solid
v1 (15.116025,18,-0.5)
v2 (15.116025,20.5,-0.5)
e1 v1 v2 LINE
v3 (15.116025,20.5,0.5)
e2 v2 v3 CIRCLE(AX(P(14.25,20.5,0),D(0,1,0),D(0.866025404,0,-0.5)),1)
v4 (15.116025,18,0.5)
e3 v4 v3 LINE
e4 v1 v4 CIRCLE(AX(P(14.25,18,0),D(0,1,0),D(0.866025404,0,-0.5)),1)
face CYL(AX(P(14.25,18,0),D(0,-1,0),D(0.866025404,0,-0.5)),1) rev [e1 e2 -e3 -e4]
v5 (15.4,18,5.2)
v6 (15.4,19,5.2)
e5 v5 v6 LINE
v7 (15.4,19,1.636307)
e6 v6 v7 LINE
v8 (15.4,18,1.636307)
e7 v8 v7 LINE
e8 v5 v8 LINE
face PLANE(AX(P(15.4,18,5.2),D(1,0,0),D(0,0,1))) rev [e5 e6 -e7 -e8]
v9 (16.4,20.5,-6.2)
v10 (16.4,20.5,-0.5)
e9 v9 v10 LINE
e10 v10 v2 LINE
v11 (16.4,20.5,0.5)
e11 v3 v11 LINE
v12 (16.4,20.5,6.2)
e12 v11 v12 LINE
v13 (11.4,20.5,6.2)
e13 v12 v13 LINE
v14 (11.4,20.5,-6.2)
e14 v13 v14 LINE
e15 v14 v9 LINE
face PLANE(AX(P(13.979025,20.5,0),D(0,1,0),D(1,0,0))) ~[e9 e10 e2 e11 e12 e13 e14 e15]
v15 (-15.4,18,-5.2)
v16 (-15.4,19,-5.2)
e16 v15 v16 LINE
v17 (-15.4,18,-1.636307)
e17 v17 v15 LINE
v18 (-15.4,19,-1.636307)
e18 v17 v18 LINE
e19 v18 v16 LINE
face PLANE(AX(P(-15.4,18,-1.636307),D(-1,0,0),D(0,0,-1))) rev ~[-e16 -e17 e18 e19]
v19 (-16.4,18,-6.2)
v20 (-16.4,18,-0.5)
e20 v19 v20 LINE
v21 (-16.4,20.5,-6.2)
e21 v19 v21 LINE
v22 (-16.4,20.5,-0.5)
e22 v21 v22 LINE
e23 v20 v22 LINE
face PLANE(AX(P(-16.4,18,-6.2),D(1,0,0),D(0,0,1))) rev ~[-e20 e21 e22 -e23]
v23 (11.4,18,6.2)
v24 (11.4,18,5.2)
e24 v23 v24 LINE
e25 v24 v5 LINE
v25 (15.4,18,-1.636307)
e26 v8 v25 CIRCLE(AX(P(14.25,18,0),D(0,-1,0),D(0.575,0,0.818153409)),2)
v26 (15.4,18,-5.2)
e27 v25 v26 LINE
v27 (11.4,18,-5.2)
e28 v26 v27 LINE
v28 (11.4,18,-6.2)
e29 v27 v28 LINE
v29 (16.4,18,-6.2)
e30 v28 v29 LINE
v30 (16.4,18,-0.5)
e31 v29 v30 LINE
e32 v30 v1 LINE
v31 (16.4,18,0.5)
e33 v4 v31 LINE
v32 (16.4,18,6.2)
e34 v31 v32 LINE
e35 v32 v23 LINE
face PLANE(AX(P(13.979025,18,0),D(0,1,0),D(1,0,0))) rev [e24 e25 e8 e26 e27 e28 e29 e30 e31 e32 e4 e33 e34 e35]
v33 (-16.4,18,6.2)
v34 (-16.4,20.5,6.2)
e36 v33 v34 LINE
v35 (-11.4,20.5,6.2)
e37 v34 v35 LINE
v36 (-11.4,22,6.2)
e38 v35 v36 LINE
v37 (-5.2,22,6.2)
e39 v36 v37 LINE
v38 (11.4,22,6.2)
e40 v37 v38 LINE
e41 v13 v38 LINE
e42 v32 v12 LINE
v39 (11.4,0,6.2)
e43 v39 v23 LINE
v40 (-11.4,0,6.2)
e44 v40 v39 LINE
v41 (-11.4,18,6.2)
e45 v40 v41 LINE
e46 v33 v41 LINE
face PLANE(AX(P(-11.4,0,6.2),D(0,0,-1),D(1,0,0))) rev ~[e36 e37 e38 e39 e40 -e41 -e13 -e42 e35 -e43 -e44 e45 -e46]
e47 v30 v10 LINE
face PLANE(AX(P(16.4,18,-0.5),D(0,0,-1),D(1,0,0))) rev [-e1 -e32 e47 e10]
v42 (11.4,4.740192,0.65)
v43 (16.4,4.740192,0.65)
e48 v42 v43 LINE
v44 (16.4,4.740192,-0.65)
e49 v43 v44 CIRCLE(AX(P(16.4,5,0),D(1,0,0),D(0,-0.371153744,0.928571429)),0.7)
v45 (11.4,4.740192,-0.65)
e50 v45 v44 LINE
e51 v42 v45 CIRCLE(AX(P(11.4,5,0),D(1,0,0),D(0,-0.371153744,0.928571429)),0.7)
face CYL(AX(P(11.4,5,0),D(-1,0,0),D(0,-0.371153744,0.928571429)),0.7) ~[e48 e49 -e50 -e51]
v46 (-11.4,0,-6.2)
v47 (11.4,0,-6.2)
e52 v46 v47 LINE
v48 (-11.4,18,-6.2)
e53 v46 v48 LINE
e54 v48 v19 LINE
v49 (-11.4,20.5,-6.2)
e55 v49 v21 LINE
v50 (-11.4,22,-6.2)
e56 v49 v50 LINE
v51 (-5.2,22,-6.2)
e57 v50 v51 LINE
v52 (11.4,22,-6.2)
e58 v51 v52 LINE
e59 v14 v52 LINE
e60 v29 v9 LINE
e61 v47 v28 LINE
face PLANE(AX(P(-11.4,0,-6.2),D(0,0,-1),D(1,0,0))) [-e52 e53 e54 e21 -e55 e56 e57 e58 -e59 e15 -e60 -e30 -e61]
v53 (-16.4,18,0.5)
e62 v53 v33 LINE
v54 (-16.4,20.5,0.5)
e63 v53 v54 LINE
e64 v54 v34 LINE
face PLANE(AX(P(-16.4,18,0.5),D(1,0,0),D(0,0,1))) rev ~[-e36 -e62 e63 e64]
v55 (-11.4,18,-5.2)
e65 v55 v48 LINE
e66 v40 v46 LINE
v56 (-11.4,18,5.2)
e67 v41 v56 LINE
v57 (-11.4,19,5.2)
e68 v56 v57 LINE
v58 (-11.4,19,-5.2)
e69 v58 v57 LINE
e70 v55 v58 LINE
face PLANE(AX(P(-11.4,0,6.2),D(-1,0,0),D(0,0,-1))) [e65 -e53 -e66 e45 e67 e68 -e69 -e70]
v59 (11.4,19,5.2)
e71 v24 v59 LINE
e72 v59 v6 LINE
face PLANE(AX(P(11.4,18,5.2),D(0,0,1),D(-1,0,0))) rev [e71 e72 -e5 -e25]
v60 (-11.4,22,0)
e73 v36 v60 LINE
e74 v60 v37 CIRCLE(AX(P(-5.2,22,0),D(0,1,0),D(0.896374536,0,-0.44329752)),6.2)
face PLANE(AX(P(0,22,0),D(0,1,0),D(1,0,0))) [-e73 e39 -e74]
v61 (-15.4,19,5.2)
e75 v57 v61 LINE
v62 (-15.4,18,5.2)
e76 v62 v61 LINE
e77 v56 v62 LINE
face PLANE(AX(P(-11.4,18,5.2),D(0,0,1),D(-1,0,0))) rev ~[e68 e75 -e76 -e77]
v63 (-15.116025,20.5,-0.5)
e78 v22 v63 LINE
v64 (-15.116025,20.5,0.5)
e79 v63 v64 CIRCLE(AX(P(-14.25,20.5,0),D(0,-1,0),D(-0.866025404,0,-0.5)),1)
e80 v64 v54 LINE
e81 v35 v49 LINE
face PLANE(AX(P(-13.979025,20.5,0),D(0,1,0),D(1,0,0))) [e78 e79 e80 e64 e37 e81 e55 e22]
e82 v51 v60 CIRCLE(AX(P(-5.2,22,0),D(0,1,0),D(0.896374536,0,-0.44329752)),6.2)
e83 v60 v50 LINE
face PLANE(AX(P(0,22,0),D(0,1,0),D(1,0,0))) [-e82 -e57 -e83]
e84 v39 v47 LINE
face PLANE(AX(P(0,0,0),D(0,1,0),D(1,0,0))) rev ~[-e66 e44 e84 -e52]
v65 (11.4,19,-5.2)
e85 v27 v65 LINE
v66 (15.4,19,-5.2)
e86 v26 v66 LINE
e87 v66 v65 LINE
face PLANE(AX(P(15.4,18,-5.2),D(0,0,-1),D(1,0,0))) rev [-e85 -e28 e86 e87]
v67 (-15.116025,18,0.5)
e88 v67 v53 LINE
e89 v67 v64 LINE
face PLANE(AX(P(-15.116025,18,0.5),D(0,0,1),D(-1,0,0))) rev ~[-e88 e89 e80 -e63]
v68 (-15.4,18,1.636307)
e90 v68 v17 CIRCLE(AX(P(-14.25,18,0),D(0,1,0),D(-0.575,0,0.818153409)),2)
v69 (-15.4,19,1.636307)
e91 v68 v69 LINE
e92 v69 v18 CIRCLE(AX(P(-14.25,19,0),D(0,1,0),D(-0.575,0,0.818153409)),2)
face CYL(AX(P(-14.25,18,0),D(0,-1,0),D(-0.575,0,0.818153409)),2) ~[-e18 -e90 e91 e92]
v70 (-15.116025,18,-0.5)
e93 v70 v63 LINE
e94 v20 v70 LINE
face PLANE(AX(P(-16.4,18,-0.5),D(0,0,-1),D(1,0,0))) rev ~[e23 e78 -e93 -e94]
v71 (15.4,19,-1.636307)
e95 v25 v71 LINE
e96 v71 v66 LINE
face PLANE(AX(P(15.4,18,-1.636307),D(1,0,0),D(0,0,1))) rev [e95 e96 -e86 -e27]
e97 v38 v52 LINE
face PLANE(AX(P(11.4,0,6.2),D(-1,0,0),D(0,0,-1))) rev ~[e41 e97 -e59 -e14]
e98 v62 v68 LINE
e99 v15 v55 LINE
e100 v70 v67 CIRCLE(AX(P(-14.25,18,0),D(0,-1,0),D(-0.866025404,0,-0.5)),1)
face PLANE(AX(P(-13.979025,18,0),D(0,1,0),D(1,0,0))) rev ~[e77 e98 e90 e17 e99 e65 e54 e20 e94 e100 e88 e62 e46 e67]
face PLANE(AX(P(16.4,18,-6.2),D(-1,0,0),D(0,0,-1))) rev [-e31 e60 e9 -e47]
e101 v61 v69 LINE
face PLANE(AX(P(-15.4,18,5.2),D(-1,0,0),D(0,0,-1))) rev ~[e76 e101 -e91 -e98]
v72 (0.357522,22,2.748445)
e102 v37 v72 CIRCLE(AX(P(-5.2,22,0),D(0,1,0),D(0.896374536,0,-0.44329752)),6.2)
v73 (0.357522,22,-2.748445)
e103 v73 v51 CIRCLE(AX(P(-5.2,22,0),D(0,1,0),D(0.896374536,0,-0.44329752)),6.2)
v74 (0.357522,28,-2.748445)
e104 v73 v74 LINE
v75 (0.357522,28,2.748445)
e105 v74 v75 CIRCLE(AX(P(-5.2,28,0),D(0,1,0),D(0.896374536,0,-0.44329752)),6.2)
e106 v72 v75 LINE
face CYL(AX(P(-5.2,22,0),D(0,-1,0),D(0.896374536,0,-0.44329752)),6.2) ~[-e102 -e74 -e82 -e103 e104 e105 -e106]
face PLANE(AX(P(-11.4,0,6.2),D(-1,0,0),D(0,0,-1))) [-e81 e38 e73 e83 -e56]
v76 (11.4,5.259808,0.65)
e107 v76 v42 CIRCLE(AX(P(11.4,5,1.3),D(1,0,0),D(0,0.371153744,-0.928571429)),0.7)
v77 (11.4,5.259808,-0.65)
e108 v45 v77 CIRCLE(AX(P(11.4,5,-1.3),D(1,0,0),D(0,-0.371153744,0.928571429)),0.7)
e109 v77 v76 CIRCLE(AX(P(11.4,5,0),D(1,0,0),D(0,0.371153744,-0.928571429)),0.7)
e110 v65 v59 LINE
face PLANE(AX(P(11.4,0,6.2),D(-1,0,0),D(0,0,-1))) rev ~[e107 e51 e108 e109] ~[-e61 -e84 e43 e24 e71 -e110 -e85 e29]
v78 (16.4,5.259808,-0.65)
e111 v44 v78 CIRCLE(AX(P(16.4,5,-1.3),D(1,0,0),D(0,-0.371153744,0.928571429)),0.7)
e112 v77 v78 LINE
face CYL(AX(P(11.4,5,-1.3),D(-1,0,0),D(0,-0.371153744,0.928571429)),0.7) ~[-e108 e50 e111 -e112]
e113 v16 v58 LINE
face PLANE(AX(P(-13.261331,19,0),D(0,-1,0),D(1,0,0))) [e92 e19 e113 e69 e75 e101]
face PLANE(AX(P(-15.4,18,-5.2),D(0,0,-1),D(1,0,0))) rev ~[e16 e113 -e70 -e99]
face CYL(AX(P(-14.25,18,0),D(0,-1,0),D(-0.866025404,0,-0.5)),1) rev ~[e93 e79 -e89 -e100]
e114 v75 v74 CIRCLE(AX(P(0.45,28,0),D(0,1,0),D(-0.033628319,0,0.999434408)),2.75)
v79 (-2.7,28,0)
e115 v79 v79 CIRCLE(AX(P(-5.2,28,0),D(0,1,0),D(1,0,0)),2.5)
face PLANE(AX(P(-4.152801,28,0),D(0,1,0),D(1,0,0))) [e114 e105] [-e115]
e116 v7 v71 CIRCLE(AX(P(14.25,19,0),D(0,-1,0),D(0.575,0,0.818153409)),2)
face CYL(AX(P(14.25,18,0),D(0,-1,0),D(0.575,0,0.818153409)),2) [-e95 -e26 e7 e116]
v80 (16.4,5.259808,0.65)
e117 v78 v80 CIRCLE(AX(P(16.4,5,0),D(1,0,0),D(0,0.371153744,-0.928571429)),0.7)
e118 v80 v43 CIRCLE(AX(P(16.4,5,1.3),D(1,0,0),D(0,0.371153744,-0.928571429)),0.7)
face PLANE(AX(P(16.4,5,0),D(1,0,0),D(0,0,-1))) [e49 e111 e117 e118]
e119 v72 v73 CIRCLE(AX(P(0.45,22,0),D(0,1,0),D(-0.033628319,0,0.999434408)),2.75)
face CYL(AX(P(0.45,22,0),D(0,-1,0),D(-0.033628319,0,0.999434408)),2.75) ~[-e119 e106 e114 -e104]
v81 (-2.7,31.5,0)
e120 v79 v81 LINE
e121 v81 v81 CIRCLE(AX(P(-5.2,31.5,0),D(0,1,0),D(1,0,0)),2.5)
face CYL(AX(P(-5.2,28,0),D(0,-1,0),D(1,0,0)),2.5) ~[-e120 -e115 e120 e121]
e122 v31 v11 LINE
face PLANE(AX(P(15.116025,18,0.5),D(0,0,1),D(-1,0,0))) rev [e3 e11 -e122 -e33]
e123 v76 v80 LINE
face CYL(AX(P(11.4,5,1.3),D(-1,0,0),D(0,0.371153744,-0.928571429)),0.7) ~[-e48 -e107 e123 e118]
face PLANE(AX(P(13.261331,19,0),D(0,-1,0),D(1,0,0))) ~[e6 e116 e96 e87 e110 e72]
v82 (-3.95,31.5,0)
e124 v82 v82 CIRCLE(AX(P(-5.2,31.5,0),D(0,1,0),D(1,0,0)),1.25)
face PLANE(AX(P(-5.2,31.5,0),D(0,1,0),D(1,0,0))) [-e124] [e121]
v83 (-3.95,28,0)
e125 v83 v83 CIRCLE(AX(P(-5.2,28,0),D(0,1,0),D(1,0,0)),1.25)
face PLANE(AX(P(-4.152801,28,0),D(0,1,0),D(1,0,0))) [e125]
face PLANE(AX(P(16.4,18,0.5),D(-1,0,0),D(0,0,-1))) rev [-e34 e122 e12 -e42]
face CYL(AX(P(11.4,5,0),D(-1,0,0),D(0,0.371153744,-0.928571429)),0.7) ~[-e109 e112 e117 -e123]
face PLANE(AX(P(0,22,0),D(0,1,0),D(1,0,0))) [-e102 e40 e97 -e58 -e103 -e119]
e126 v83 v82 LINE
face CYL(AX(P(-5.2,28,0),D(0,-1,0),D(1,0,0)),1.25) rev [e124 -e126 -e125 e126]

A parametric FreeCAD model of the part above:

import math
import FreeCAD as App
import Part
import Sketcher
Q = App.Units.Quantity

doc = App.newDocument("Part")
body = doc.addObject("PartDesign::Body", "Body")

sketch1 = body.newObject("Sketcher::SketchObject", "Sketch")
sketch1.AttachmentSupport = (doc.getObject("XZ_Plane"), [""])
sketch1.MapMode = "FlatFace"
sketch1.addGeometry(Part.LineSegment(App.Vector(-11, -6, 0), App.Vector(-11, 6, 0)), False)
sketch1.addGeometry(Part.LineSegment(App.Vector(-11, 6, 0), App.Vector(11, 6, 0)), False)
sketch1.addGeometry(Part.LineSegment(App.Vector(11, 6, 0), App.Vector(11, -6, 0)), False)
sketch1.addGeometry(Part.LineSegment(App.Vector(11, -6, 0), App.Vector(-11, -6, 0)), False)
sketch1.addConstraint(Sketcher.Constraint("Coincident", 0, 2, 1, 1))
sketch1.addConstraint(Sketcher.Constraint("Coincident", 1, 2, 2, 1))
sketch1.addConstraint(Sketcher.Constraint("Coincident", 2, 2, 3, 1))
sketch1.addConstraint(Sketcher.Constraint("Coincident", 3, 2, 0, 1))
sketch1.addConstraint(Sketcher.Constraint("Vertical", 0))
sketch1.addConstraint(Sketcher.Constraint("Horizontal", 1))
sketch1.addConstraint(Sketcher.Constraint("Vertical", 2))
sketch1.addConstraint(Sketcher.Constraint("Horizontal", 3))
sketch1.addConstraint(Sketcher.Constraint("Symmetric", 0, 2, 2, 2, -1, 1))
sketch1.addConstraint(Sketcher.Constraint("DistanceX", 1, 1, 1, 2, Q("22.8 mm")))
sketch1.addConstraint(Sketcher.Constraint("DistanceY", 0, 1, 0, 2, Q("12.4 mm")))
pad1 = body.newObject("PartDesign::Pad", "Pad")
pad1.Profile = sketch1
pad1.Length = 22
pad1.Reversed = True

sketch2 = body.newObject("Sketcher::SketchObject", "Sketch001")
sketch2.AttachmentSupport = (doc.getObject("XZ_Plane"), [""])
sketch2.MapMode = "FlatFace"
sketch2.AttachmentOffset = App.Placement(App.Vector(0, 0, -22), App.Rotation())
sketch2.addGeometry(Part.ArcOfCircle(Part.Circle(App.Vector(-5.2, 0, 0), App.Vector(0, 0, 1), 6.2), math.radians(26), math.radians(334)), False)
sketch2.addGeometry(Part.ArcOfCircle(Part.Circle(App.Vector(0.5, 0, 0), App.Vector(0, 0, 1), 2.8), math.radians(-92), math.radians(92)), False)
sketch2.addConstraint(Sketcher.Constraint("Coincident", 0, 1, 1, 2))
sketch2.addConstraint(Sketcher.Constraint("Coincident", 1, 1, 0, 2))
sketch2.addConstraint(Sketcher.Constraint("Symmetric", 0, 1, 1, 1, -1))
sketch2.addConstraint(Sketcher.Constraint("Radius", 0, Q("6.2 mm")))
sketch2.addConstraint(Sketcher.Constraint("Radius", 1, Q("2.75 mm")))
sketch2.addConstraint(Sketcher.Constraint("DistanceX", 0, 3, -1, 1, Q("5.2 mm")))
sketch2.addConstraint(Sketcher.Constraint("DistanceX", -1, 1, 1, 3, Q("0.45 mm")))
pad2 = body.newObject("PartDesign::Pad", "Pad001")
pad2.Profile = sketch2
pad2.Length = 6
pad2.Reversed = True

sketch3 = body.newObject("Sketcher::SketchObject", "Sketch002")
sketch3.AttachmentSupport = (doc.getObject("XZ_Plane"), [""])
sketch3.MapMode = "FlatFace"
sketch3.AttachmentOffset = App.Placement(App.Vector(0, 0, -28), App.Rotation())
sketch3.addGeometry(Part.Circle(App.Vector(-5.2, 0, 0), App.Vector(0, 0, 1), 2.5), False)
sketch3.addGeometry(Part.Circle(App.Vector(-5.2, 0, 0), App.Vector(0, 0, 1), 1.2), False)
sketch3.addConstraint(Sketcher.Constraint("Coincident", 1, 3, 0, 3))
sketch3.addConstraint(Sketcher.Constraint("PointOnObject", 0, 3, -1))
sketch3.addConstraint(Sketcher.Constraint("Diameter", 0, Q("5 mm")))
sketch3.addConstraint(Sketcher.Constraint("Diameter", 1, Q("2.5 mm")))
sketch3.addConstraint(Sketcher.Constraint("DistanceX", 0, 3, -1, 1, Q("5.2 mm")))
pad3 = body.newObject("PartDesign::Pad", "Pad002")
pad3.Profile = sketch3
pad3.Length = 3.5
pad3.Reversed = True

sketch4 = body.newObject("Sketcher::SketchObject", "Sketch003")
sketch4.AttachmentSupport = (doc.getObject("XZ_Plane"), [""])
sketch4.MapMode = "FlatFace"
sketch4.AttachmentOffset = App.Placement(App.Vector(0, 0, -18), App.Rotation())
sketch4.addGeometry(Part.LineSegment(App.Vector(-16.4, 0.5, 0), App.Vector(-16.4, 6.2, 0)), False)
sketch4.addGeometry(Part.LineSegment(App.Vector(-16.4, 6.2, 0), App.Vector(-11.4, 6.2, 0)), False)
sketch4.addGeometry(Part.LineSegment(App.Vector(-11.4, 6.2, 0), App.Vector(-11.4, -6.2, 0)), False)
sketch4.addGeometry(Part.LineSegment(App.Vector(-11.4, -6.2, 0), App.Vector(-16.4, -6.2, 0)), False)
sketch4.addGeometry(Part.LineSegment(App.Vector(-16.4, -6.2, 0), App.Vector(-16.4, -0.5, 0)), False)
sketch4.addGeometry(Part.LineSegment(App.Vector(-16.4, -0.5, 0), App.Vector(-15.1, -0.5, 0)), False)
sketch4.addGeometry(Part.ArcOfCircle(Part.Circle(App.Vector(-14.2, 0, 0), App.Vector(0, 0, 1), 1), math.radians(-150), math.radians(150)), False)
sketch4.addGeometry(Part.LineSegment(App.Vector(-15.1, 0.5, 0), App.Vector(-16.4, 0.5, 0)), False)
sketch4.addConstraint(Sketcher.Constraint("Coincident", 0, 2, 1, 1))
sketch4.addConstraint(Sketcher.Constraint("Coincident", 1, 2, 2, 1))
sketch4.addConstraint(Sketcher.Constraint("Coincident", 2, 2, 3, 1))
sketch4.addConstraint(Sketcher.Constraint("Coincident", 3, 2, 4, 1))
sketch4.addConstraint(Sketcher.Constraint("Coincident", 4, 2, 5, 1))
sketch4.addConstraint(Sketcher.Constraint("Coincident", 5, 2, 6, 1))
sketch4.addConstraint(Sketcher.Constraint("Coincident", 6, 2, 7, 1))
sketch4.addConstraint(Sketcher.Constraint("Coincident", 7, 2, 0, 1))
sketch4.addConstraint(Sketcher.Constraint("Vertical", 0))
sketch4.addConstraint(Sketcher.Constraint("Horizontal", 1))
sketch4.addConstraint(Sketcher.Constraint("Vertical", 2))
sketch4.addConstraint(Sketcher.Constraint("Horizontal", 3))
sketch4.addConstraint(Sketcher.Constraint("Vertical", 4))
sketch4.addConstraint(Sketcher.Constraint("Horizontal", 5))
sketch4.addConstraint(Sketcher.Constraint("Horizontal", 7))
sketch4.addConstraint(Sketcher.Constraint("Symmetric", 0, 2, 3, 2, -1))
sketch4.addConstraint(Sketcher.Constraint("Symmetric", 5, 2, 6, 2, -1))
sketch4.addConstraint(Sketcher.Constraint("Radius", 6, Q("1 mm")))
sketch4.addConstraint(Sketcher.Constraint("DistanceX", 1, 1, 1, 2, Q("5 mm")))
sketch4.addConstraint(Sketcher.Constraint("DistanceY", 0, 1, 0, 2, Q("5.7 mm")))
sketch4.addConstraint(Sketcher.Constraint("DistanceY", 2, 2, 2, 1, Q("12.4 mm")))
sketch4.addConstraint(Sketcher.Constraint("DistanceX", 0, 2, -1, 1, Q("16.4 mm")))
sketch4.addConstraint(Sketcher.Constraint("DistanceX", 6, 3, -1, 1, Q("14.25 mm")))
pad4 = body.newObject("PartDesign::Pad", "Pad003")
pad4.Profile = sketch4
pad4.Length = 2.5
pad4.Reversed = True

sketch5 = body.newObject("Sketcher::SketchObject", "Sketch004")
sketch5.AttachmentSupport = (doc.getObject("XZ_Plane"), [""])
sketch5.MapMode = "FlatFace"
sketch5.AttachmentOffset = App.Placement(App.Vector(0, 0, -18), App.Rotation())
sketch5.addGeometry(Part.LineSegment(App.Vector(-11.4, -5.2, 0), App.Vector(-11.4, 5.2, 0)), False)
sketch5.addGeometry(Part.LineSegment(App.Vector(-11.4, 5.2, 0), App.Vector(-15.4, 5.2, 0)), False)
sketch5.addGeometry(Part.LineSegment(App.Vector(-15.4, 5.2, 0), App.Vector(-15.4, 1.6, 0)), False)
sketch5.addGeometry(Part.ArcOfCircle(Part.Circle(App.Vector(-14.2, 0, 0), App.Vector(0, 0, 1), 2), math.radians(-125), math.radians(125)), False)
sketch5.addGeometry(Part.LineSegment(App.Vector(-15.4, -1.6, 0), App.Vector(-15.4, -5.2, 0)), False)
sketch5.addGeometry(Part.LineSegment(App.Vector(-15.4, -5.2, 0), App.Vector(-11.4, -5.2, 0)), False)
sketch5.addConstraint(Sketcher.Constraint("Coincident", 0, 2, 1, 1))
sketch5.addConstraint(Sketcher.Constraint("Coincident", 1, 2, 2, 1))
sketch5.addConstraint(Sketcher.Constraint("Coincident", 2, 2, 3, 2))
sketch5.addConstraint(Sketcher.Constraint("Coincident", 3, 1, 4, 1))
sketch5.addConstraint(Sketcher.Constraint("Coincident", 4, 2, 5, 1))
sketch5.addConstraint(Sketcher.Constraint("Coincident", 5, 2, 0, 1))
sketch5.addConstraint(Sketcher.Constraint("Vertical", 0))
sketch5.addConstraint(Sketcher.Constraint("Horizontal", 1))
sketch5.addConstraint(Sketcher.Constraint("Vertical", 2))
sketch5.addConstraint(Sketcher.Constraint("Vertical", 4))
sketch5.addConstraint(Sketcher.Constraint("Horizontal", 5))
sketch5.addConstraint(Sketcher.Constraint("Symmetric", 2, 2, 3, 1, -1))
sketch5.addConstraint(Sketcher.Constraint("Equal", 2, 4))
sketch5.addConstraint(Sketcher.Constraint("Radius", 3, Q("2 mm")))
sketch5.addConstraint(Sketcher.Constraint("DistanceX", 1, 2, 1, 1, Q("4 mm")))
sketch5.addConstraint(Sketcher.Constraint("DistanceY", 0, 1, 0, 2, Q("10.4 mm")))
sketch5.addConstraint(Sketcher.Constraint("DistanceX", 0, 2, -1, 1, Q("11.4 mm")))
sketch5.addConstraint(Sketcher.Constraint("DistanceX", 3, 3, -1, 1, Q("14.25 mm")))
pocket1 = body.newObject("PartDesign::Pocket", "Pocket")
pocket1.Profile = sketch5
pocket1.Length = 1
doc.recompute()

mirrored = body.newObject("PartDesign::Mirrored", "Mirrored")
mirrored.Originals = [pad4, pocket1]
mirrored.MirrorPlane = (doc.getObject("YZ_Plane"), [""])
body.Tip = mirrored

sketch6 = body.newObject("Sketcher::SketchObject", "Sketch005")
sketch6.AttachmentSupport = (doc.getObject("YZ_Plane"), [""])
sketch6.MapMode = "FlatFace"
sketch6.AttachmentOffset = App.Placement(App.Vector(0, 0, 11.4), App.Rotation())
sketch6.addGeometry(Part.ArcOfCircle(Part.Circle(App.Vector(5, 0, 0), App.Vector(0, 0, 1), 0.7), math.radians(112), math.radians(248)), False)
sketch6.addGeometry(Part.ArcOfCircle(Part.Circle(App.Vector(5, -1.3, 0), App.Vector(0, 0, 1), 0.7), math.radians(112), math.radians(428)), False)
sketch6.addGeometry(Part.ArcOfCircle(Part.Circle(App.Vector(5, 0, 0), App.Vector(0, 0, 1), 0.7), math.radians(-68), math.radians(68)), False)
sketch6.addGeometry(Part.ArcOfCircle(Part.Circle(App.Vector(5, 1.3, 0), App.Vector(0, 0, 1), 0.7), math.radians(-68), math.radians(248)), False)
sketch6.addConstraint(Sketcher.Constraint("Coincident", 0, 2, 1, 1))
sketch6.addConstraint(Sketcher.Constraint("Coincident", 1, 2, 2, 1))
sketch6.addConstraint(Sketcher.Constraint("Coincident", 2, 2, 3, 1))
sketch6.addConstraint(Sketcher.Constraint("Coincident", 3, 2, 0, 1))
sketch6.addConstraint(Sketcher.Constraint("Coincident", 2, 3, 0, 3))
sketch6.addConstraint(Sketcher.Constraint("Equal", 0, 1))
sketch6.addConstraint(Sketcher.Constraint("Equal", 1, 2))
sketch6.addConstraint(Sketcher.Constraint("Equal", 2, 3))
sketch6.addConstraint(Sketcher.Constraint("Symmetric", 1, 3, 3, 3, -1))
sketch6.addConstraint(Sketcher.Constraint("PointOnObject", 0, 3, -1))
sketch6.addConstraint(Sketcher.Constraint("Horizontal", 0, 2, 1, 2))
sketch6.addConstraint(Sketcher.Constraint("Radius", 0, Q("0.7 mm")))
sketch6.addConstraint(Sketcher.Constraint("DistanceX", -1, 1, 0, 3, Q("5 mm")))
sketch6.addConstraint(Sketcher.Constraint("DistanceY", 1, 3, -1, 1, Q("1.3 mm")))
pad5 = body.newObject("PartDesign::Pad", "Pad004")
pad5.Profile = sketch6
pad5.Length = 5

doc.recompute()
